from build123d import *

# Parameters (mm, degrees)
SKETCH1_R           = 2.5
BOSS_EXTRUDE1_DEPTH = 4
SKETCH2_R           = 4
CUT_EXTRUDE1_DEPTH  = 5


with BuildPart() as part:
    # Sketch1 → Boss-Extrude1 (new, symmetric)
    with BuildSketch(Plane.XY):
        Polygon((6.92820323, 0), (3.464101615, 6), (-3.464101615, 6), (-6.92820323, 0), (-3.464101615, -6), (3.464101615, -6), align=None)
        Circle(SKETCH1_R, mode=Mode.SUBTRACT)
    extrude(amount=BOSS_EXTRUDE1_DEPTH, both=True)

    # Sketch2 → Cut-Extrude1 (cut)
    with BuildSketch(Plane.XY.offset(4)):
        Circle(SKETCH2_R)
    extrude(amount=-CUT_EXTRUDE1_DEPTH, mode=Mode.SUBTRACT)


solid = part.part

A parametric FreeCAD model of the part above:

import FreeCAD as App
import Part
import Sketcher
Q = App.Units.Quantity

doc = App.newDocument("Part")
params = doc.addObject("Spreadsheet::Sheet", "Params")
for row, (alias, value) in enumerate([
    ("sketch1_diameter", "5 mm"),
    ("pad1_length", "8 mm"),
    ("sketch2_diameter", "8 mm"),
    ("pocket1_length", "5 mm"),
], start=1):
    params.set(f"A{row}", alias)
    params.set(f"B{row}", "=" + value)
    params.setAlias(f"B{row}", alias)

body = doc.addObject("PartDesign::Body", "Body")

sketch1 = body.newObject("Sketcher::SketchObject", "Sketch")
sketch1.AttachmentSupport = (doc.getObject("XY_Plane"), [""])
sketch1.MapMode = "FlatFace"
sketch1.addGeometry(Part.LineSegment(App.Vector(6.9, 0, 0), App.Vector(3.5, 6, 0)), False)
sketch1.addGeometry(Part.LineSegment(App.Vector(3.5, 6, 0), App.Vector(-3.5, 6, 0)), False)
sketch1.addGeometry(Part.LineSegment(App.Vector(-3.5, 6, 0), App.Vector(-6.9, 0, 0)), False)
sketch1.addGeometry(Part.LineSegment(App.Vector(-6.9, 0, 0), App.Vector(-3.5, -6, 0)), False)
sketch1.addGeometry(Part.LineSegment(App.Vector(-3.5, -6, 0), App.Vector(3.5, -6, 0)), False)
sketch1.addGeometry(Part.LineSegment(App.Vector(3.5, -6, 0), App.Vector(6.9, 0, 0)), False)
sketch1.addGeometry(Part.Circle(App.Vector(0, 0, 0), App.Vector(0, 0, 1), 2.5), False)
sketch1.addConstraint(Sketcher.Constraint("Coincident", 0, 2, 1, 1))
sketch1.addConstraint(Sketcher.Constraint("Coincident", 1, 2, 2, 1))
sketch1.addConstraint(Sketcher.Constraint("Coincident", 2, 2, 3, 1))
sketch1.addConstraint(Sketcher.Constraint("Coincident", 3, 2, 4, 1))
sketch1.addConstraint(Sketcher.Constraint("Coincident", 4, 2, 5, 1))
sketch1.addConstraint(Sketcher.Constraint("Coincident", 5, 2, 0, 1))
sketch1.addConstraint(Sketcher.Constraint("Horizontal", 1))
sketch1.addConstraint(Sketcher.Constraint("Horizontal", 4))
sketch1.addConstraint(Sketcher.Constraint("Coincident", 6, 3, -1, 1))
sketch1.addConstraint(Sketcher.Constraint("Symmetric", 0, 2, 3, 2, -1, 1))
sketch1.addConstraint(Sketcher.Constraint("Symmetric", 2, 2, 5, 2, -1, 1))
sketch1.addConstraint(Sketcher.Constraint("PointOnObject", 2, 2, -1))
sketch1.addConstraint(Sketcher.Constraint("Parallel", 2, 5))
sketch1.addConstraint(Sketcher.Constraint("Vertical", 1, 2, 3, 2))
sketch1.addConstraint(Sketcher.Constraint("Diameter", 6, Q("5 mm")))
sketch1.addConstraint(Sketcher.Constraint("Angle", 0, Q("120 deg")))
sketch1.addConstraint(Sketcher.Constraint("DistanceY", -1, 1, 0, 2, Q("6 mm")))
sketch1.addConstraint(Sketcher.Constraint("DistanceX", -1, 1, 0, 2, Q("3.464102 mm")))
sketch1.setExpression("Constraints[14]", "Params.sketch1_diameter")
pad1 = body.newObject("PartDesign::Pad", "Pad")
pad1.Profile = sketch1
pad1.setExpression("Length", "Params.pad1_length")
pad1.Midplane = True

sketch2 = body.newObject("Sketcher::SketchObject", "Sketch001")
sketch2.AttachmentSupport = (doc.getObject("XY_Plane"), [""])
sketch2.MapMode = "FlatFace"
sketch2.AttachmentOffset = App.Placement(App.Vector(0, 0, 4), App.Rotation())
sketch2.addGeometry(Part.Circle(App.Vector(0, 0, 0), App.Vector(0, 0, 1), 4), False)
sketch2.addConstraint(Sketcher.Constraint("Coincident", 0, 3, -1, 1))
sketch2.addConstraint(Sketcher.Constraint("Diameter", 0, Q("8 mm")))
sketch2.setExpression("Constraints[1]", "Params.sketch2_diameter")
pocket1 = body.newObject("PartDesign::Pocket", "Pocket")
pocket1.Profile = sketch2
pocket1.setExpression("Length", "Params.pocket1_length")

doc.recompute()
